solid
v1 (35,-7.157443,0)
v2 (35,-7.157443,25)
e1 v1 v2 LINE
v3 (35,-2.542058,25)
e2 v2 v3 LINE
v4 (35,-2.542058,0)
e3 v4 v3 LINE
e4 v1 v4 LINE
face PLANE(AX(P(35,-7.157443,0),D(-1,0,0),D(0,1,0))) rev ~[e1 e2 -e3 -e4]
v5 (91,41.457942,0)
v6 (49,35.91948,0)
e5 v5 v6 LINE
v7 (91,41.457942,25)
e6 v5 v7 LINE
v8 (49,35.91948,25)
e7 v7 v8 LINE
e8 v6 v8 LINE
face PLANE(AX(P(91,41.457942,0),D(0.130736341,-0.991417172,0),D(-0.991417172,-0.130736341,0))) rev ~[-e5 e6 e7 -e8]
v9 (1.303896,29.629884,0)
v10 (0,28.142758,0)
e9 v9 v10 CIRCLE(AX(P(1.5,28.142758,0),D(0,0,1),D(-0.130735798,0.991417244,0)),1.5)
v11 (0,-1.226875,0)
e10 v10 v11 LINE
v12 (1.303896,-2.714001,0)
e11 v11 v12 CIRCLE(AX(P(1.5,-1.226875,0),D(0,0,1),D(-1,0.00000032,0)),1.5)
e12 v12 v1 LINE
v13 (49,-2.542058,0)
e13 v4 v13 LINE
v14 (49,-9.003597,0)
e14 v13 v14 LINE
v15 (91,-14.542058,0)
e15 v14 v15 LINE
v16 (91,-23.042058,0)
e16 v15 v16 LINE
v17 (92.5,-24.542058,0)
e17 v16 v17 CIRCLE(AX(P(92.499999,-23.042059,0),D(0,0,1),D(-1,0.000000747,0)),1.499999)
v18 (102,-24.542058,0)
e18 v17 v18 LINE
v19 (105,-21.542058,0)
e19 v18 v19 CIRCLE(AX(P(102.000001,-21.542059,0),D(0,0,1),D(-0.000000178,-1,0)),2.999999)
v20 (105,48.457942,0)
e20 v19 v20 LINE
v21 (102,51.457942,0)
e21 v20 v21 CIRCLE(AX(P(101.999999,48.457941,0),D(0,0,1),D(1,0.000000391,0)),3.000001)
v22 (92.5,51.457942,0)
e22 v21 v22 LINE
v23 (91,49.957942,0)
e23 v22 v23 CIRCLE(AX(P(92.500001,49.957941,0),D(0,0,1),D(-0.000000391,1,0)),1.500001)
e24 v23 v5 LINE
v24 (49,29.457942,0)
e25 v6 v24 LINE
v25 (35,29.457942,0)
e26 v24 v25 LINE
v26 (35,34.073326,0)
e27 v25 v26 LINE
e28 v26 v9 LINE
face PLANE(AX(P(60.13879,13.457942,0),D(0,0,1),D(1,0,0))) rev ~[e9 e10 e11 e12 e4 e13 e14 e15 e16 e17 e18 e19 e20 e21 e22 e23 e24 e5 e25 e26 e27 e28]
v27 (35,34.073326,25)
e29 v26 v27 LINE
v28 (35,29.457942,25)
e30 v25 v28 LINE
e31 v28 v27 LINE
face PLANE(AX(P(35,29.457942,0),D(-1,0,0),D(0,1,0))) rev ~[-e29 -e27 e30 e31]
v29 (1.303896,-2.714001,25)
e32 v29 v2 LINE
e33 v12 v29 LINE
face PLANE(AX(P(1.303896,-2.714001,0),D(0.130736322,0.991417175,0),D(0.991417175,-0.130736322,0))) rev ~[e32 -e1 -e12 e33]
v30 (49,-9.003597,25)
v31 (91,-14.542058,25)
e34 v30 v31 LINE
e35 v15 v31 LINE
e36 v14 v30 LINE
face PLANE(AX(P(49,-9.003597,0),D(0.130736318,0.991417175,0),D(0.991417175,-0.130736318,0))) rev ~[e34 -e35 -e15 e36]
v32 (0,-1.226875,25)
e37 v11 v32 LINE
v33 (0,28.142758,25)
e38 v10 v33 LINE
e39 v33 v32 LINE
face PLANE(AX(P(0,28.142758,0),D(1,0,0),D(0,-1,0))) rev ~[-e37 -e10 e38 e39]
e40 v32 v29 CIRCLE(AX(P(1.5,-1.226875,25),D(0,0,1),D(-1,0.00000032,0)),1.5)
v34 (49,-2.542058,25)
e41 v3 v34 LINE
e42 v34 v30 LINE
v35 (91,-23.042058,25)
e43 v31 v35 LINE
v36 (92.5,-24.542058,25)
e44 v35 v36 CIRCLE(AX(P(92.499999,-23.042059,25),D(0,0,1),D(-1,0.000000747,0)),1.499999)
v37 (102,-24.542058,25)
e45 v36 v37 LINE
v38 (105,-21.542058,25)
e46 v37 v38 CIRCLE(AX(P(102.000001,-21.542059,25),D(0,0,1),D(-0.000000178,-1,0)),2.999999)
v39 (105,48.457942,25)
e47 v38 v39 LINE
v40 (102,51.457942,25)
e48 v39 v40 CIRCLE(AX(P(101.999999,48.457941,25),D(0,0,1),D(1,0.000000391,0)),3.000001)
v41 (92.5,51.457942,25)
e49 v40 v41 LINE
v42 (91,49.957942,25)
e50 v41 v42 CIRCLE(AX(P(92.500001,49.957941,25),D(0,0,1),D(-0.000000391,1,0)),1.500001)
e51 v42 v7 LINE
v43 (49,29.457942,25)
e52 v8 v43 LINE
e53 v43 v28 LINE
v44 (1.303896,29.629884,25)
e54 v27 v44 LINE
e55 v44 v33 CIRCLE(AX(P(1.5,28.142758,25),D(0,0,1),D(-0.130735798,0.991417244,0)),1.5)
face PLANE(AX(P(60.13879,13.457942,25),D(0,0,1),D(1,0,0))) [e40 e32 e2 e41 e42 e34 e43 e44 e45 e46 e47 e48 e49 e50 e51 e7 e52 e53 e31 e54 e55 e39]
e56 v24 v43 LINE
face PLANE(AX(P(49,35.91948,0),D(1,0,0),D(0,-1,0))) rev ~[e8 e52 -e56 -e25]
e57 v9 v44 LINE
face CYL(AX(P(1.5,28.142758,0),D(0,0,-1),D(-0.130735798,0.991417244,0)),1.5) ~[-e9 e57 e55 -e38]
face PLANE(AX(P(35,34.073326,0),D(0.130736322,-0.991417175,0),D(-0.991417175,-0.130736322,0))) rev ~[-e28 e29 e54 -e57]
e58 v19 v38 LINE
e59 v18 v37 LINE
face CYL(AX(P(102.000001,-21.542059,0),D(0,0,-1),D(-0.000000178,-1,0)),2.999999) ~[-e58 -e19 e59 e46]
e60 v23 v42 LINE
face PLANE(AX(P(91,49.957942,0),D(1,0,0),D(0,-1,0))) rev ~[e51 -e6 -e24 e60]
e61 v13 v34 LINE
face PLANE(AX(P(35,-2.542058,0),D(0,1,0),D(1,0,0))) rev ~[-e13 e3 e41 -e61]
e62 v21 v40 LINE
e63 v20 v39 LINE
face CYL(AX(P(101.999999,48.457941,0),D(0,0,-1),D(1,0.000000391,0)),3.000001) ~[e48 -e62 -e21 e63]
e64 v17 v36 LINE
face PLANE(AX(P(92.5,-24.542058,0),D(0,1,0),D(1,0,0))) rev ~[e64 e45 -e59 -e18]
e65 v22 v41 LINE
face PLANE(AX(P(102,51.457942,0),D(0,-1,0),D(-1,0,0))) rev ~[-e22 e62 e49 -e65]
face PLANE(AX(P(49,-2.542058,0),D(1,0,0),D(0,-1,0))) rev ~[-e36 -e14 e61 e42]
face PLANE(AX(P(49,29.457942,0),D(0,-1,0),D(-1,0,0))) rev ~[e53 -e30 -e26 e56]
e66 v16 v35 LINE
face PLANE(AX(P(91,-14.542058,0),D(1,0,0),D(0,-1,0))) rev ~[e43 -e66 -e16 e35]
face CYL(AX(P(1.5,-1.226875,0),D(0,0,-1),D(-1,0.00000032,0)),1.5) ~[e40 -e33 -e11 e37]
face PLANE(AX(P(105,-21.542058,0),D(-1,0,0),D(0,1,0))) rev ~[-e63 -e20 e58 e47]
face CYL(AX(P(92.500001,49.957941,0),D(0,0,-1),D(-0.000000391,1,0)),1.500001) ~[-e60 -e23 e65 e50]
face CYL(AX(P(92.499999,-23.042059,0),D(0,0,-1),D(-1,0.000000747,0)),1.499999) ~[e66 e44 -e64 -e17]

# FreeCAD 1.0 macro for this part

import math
import FreeCAD as App
import Part
import Sketcher

doc = App.newDocument("Part")
body = doc.addObject("PartDesign::Body", "Body")

# Sketch on XY plane
sketch1 = body.newObject("Sketcher::SketchObject", "Sketch")
sketch1.AttachmentSupport = (doc.getObject("XY_Plane"), [""])
sketch1.MapMode = "FlatFace"
sketch1.addGeometry([
    Part.LineSegment(App.Vector(102, 51.5, 0), App.Vector(92.5, 51.5, 0)),  # 0
    Part.ArcOfCircle(Part.Circle(App.Vector(92.5, 50, 0), App.Vector(0, 0, 1), 1.5), math.radians(90), math.radians(180)),  # 1
    Part.LineSegment(App.Vector(91, 50, 0), App.Vector(91, 41.5, 0)),  # 2
    Part.LineSegment(App.Vector(91, 41.5, 0), App.Vector(49, 35.9, 0)),  # 3
    Part.LineSegment(App.Vector(49, 35.9, 0), App.Vector(49, 29.5, 0)),  # 4
    Part.LineSegment(App.Vector(49, 29.5, 0), App.Vector(35, 29.5, 0)),  # 5
    Part.LineSegment(App.Vector(35, 29.5, 0), App.Vector(35, 34.1, 0)),  # 6
    Part.LineSegment(App.Vector(35, 34.1, 0), App.Vector(1.3, 29.6, 0)),  # 7
    Part.ArcOfCircle(Part.Circle(App.Vector(1.5, 28.1, 0), App.Vector(0, 0, 1), 1.5), math.radians(98), math.radians(180)),  # 8
    Part.LineSegment(App.Vector(0, 28.1, 0), App.Vector(0, -1.2, 0)),  # 9
    Part.ArcOfCircle(Part.Circle(App.Vector(1.5, -1.2, 0), App.Vector(0, 0, 1), 1.5), math.radians(180), math.radians(262)),  # 10
    Part.LineSegment(App.Vector(1.3, -2.7, 0), App.Vector(35, -7.2, 0)),  # 11
    Part.LineSegment(App.Vector(35, -7.2, 0), App.Vector(35, -2.5, 0)),  # 12
    Part.LineSegment(App.Vector(35, -2.5, 0), App.Vector(49, -2.5, 0)),  # 13
    Part.LineSegment(App.Vector(49, -2.5, 0), App.Vector(49, -9, 0)),  # 14
    Part.LineSegment(App.Vector(49, -9, 0), App.Vector(91, -14.5, 0)),  # 15
    Part.LineSegment(App.Vector(91, -14.5, 0), App.Vector(91, -23, 0)),  # 16
    Part.ArcOfCircle(Part.Circle(App.Vector(92.5, -23, 0), App.Vector(0, 0, 1), 1.5), math.radians(180), math.radians(270)),  # 17
    Part.LineSegment(App.Vector(92.5, -24.5, 0), App.Vector(102, -24.5, 0)),  # 18
    Part.ArcOfCircle(Part.Circle(App.Vector(102, -21.5, 0), App.Vector(0, 0, 1), 3), math.radians(-90), math.radians(0)),  # 19
    Part.LineSegment(App.Vector(105, -21.5, 0), App.Vector(105, 48.5, 0)),  # 20
    Part.ArcOfCircle(Part.Circle(App.Vector(102, 48.5, 0), App.Vector(0, 0, 1), 3), math.radians(0), math.radians(90)),  # 21
], False)
sketch1.addConstraint([
    Sketcher.Constraint("Tangent", 0, 2, 1, 1),
    Sketcher.Constraint("Tangent", 1, 2, 2, 1),
    Sketcher.Constraint("Coincident", 2, 2, 3, 1),
    Sketcher.Constraint("Coincident", 3, 2, 4, 1),
    Sketcher.Constraint("Coincident", 4, 2, 5, 1),
    Sketcher.Constraint("Coincident", 5, 2, 6, 1),
    Sketcher.Constraint("Coincident", 6, 2, 7, 1),
    Sketcher.Constraint("Tangent", 7, 2, 8, 1),
    Sketcher.Constraint("Tangent", 8, 2, 9, 1),
    Sketcher.Constraint("Tangent", 9, 2, 10, 1),
    Sketcher.Constraint("Tangent", 10, 2, 11, 1),
    Sketcher.Constraint("Coincident", 11, 2, 12, 1),
    Sketcher.Constraint("Coincident", 12, 2, 13, 1),
    Sketcher.Constraint("Coincident", 13, 2, 14, 1),
    Sketcher.Constraint("Coincident", 14, 2, 15, 1),
    Sketcher.Constraint("Coincident", 15, 2, 16, 1),
    Sketcher.Constraint("Tangent", 16, 2, 17, 1),
    Sketcher.Constraint("Tangent", 17, 2, 18, 1),
    Sketcher.Constraint("Tangent", 18, 2, 19, 1),
    Sketcher.Constraint("Tangent", 19, 2, 20, 1),
    Sketcher.Constraint("Tangent", 20, 2, 21, 1),
    Sketcher.Constraint("Tangent", 21, 2, 0, 1),
    Sketcher.Constraint("Horizontal", 0),
    Sketcher.Constraint("Vertical", 2),
    Sketcher.Constraint("Vertical", 4),
    Sketcher.Constraint("Horizontal", 5),
    Sketcher.Constraint("Vertical", 6),
    Sketcher.Constraint("Vertical", 9),
    Sketcher.Constraint("Vertical", 12),
    Sketcher.Constraint("Horizontal", 13),
    Sketcher.Constraint("Vertical", 14),
    Sketcher.Constraint("Vertical", 16),
    Sketcher.Constraint("Horizontal", 18),
    Sketcher.Constraint("Vertical", 20),
    Sketcher.Constraint("Equal", 1, 8),
    Sketcher.Constraint("Equal", 8, 10),
    Sketcher.Constraint("Equal", 10, 17),
    Sketcher.Constraint("Equal", 19, 21),
    Sketcher.Constraint("PointOnObject", 8, 2, -2),
    Sketcher.Constraint("Parallel", 3, 7),
    Sketcher.Constraint("Parallel", 11, 15),
    Sketcher.Constraint("Vertical", 1, 3, 17, 3),
    Sketcher.Constraint("Vertical", 7, 2, 10, 2),
    Sketcher.Constraint("Vertical", 6, 2, 11, 2),
    Sketcher.Constraint("Vertical", 4, 2, 13, 2),
    Sketcher.Constraint("Equal", 6, 12),
    Sketcher.Constraint("Equal", 4, 14),
    Sketcher.Constraint("Equal", 2, 16),
    Sketcher.Constraint("Radius", 19, 2.999999),
    Sketcher.Constraint("Radius", 1, 1.500001),
    Sketcher.Constraint("DistanceX", 5, 2, 5, 1, 14.0),
    Sketcher.Constraint("DistanceY", 20, 1, 20, 2, 70.0),
    Sketcher.Constraint("DistanceX", 0, 2, 0, 1, 9.5),
    Sketcher.Constraint("DistanceY", 2, 2, 2, 1, 8.5),
    Sketcher.Constraint("DistanceX", -1, 1, 19, 3, 102.000001),
    Sketcher.Constraint("DistanceX", -1, 1, 3, 2, 49.0),
    Sketcher.Constraint("DistanceY", 4, 2, 2, 2, 12.0),
    Sketcher.Constraint("DistanceY", 10, 2, -1, 1, 2.714001),
    Sketcher.Constraint("Distance", 3, 42.363599),
    Sketcher.Constraint("DistanceY", 10, 3, 6, 2, 35.300201),
])
pad1 = body.newObject("PartDesign::Pad", "Pad")
pad1.Profile = sketch1
pad1.Length = 25

doc.recompute()
